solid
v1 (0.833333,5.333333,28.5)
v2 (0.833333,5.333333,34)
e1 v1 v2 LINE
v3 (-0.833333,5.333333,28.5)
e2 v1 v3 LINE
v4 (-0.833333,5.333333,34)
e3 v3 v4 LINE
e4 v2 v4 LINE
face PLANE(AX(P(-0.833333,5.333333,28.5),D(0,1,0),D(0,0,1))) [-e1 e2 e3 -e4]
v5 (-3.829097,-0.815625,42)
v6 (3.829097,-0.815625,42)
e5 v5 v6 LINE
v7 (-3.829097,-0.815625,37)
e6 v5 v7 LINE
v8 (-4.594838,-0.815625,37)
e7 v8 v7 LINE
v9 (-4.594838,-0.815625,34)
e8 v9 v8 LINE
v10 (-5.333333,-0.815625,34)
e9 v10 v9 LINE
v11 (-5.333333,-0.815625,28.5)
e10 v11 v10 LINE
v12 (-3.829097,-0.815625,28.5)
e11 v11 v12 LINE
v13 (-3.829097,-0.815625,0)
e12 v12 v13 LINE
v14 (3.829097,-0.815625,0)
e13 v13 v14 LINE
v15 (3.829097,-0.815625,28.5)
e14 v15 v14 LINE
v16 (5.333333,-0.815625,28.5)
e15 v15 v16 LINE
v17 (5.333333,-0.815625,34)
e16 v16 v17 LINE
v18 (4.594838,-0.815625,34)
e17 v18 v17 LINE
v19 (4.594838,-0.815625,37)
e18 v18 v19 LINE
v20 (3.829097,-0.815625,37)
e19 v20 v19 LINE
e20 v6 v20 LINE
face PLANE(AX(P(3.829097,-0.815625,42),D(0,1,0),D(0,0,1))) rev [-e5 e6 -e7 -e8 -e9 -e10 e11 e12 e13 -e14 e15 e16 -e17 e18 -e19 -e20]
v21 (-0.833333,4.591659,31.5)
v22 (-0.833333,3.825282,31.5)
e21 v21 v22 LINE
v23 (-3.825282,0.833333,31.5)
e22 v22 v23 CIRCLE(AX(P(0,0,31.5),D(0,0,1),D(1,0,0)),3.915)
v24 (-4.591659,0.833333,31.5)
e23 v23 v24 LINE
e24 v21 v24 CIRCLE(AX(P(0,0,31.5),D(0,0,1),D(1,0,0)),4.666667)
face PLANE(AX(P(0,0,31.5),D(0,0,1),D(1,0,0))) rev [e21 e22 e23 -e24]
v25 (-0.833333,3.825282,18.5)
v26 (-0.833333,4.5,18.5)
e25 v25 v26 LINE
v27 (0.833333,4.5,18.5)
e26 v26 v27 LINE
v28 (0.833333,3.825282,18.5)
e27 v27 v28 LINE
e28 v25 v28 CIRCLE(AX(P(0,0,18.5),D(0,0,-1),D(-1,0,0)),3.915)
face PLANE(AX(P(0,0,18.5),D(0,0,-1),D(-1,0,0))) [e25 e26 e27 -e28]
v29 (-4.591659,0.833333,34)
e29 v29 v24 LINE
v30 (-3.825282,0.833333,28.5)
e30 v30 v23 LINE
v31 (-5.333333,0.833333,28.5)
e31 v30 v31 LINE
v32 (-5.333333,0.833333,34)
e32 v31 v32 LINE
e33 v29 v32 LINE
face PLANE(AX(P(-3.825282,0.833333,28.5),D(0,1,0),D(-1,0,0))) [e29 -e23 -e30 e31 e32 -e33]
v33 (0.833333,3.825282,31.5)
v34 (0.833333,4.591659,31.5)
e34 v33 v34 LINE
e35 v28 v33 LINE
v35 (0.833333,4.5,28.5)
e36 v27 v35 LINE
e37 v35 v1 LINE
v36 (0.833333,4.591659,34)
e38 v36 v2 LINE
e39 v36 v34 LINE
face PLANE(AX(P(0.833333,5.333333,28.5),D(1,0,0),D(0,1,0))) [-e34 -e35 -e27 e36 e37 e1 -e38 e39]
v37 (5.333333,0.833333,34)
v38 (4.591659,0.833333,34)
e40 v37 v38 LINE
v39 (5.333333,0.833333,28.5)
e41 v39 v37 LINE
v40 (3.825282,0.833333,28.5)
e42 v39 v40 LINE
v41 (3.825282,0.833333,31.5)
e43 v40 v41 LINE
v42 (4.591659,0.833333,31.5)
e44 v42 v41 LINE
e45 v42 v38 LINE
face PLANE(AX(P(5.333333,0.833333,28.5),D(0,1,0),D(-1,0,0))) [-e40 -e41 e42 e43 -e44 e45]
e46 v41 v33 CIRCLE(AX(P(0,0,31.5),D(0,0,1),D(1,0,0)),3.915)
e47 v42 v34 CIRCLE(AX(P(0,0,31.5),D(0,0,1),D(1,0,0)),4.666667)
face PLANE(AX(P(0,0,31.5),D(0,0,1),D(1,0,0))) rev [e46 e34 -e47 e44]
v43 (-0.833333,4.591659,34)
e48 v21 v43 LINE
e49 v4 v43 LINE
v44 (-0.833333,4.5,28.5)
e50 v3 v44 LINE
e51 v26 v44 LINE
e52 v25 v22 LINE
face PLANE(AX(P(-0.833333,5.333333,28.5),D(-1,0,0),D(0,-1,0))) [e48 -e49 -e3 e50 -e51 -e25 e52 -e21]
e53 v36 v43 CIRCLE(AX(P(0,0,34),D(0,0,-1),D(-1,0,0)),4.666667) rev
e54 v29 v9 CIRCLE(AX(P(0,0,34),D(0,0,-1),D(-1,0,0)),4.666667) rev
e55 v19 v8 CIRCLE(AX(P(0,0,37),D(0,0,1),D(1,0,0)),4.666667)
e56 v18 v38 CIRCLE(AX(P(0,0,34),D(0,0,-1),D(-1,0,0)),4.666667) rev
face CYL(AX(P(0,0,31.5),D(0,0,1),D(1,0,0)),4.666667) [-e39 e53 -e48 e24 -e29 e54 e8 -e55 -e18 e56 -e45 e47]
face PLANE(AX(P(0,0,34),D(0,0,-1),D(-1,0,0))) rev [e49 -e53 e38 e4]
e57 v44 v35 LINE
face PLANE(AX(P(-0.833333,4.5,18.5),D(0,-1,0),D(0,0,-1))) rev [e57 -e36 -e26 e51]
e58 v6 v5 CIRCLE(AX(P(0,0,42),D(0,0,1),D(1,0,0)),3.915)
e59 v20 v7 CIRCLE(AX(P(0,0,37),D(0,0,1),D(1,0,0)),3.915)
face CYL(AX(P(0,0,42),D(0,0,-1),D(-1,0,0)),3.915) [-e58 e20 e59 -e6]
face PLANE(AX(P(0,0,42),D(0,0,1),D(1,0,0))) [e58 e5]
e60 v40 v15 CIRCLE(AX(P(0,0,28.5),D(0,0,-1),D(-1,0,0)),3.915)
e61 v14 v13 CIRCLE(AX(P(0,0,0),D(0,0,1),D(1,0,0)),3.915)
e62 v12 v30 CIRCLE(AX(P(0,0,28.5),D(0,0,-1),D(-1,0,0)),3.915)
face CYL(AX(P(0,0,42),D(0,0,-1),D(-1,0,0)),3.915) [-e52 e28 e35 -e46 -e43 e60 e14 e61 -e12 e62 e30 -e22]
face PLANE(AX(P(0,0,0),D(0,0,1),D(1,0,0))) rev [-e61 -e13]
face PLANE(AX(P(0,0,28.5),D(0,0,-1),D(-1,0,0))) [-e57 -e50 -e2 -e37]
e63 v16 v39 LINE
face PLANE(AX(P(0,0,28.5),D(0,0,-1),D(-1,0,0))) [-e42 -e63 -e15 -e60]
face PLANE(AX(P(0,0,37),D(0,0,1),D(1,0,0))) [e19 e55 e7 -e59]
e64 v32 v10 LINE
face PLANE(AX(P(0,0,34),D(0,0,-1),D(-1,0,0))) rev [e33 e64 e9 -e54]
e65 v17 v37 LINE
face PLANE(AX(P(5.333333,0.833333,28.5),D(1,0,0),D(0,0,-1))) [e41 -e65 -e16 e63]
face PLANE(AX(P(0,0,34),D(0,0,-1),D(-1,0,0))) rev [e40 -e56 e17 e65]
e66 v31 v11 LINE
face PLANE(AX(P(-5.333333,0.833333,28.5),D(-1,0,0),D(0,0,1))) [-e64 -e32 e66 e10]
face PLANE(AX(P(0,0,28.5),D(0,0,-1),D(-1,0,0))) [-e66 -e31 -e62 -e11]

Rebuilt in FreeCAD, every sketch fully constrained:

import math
import FreeCAD as App
import Part
import Sketcher

V = App.Vector
Q = App.Units.Quantity

doc = App.newDocument("Part")
params = doc.addObject("Spreadsheet::Sheet", "Params")
for row, (alias, value) in enumerate([
    ("pad1_length", "42 mm"),
    ("pad2_length", "5.5 mm"),
    ("pad3_length", "2.5 mm"),
    ("pad3_length2", "3 mm"),
    ("pad4_length", "10 mm"),
], start=1):
    params.set(f"A{row}", alias)
    params.set(f"B{row}", "=" + value)
    params.setAlias(f"B{row}", alias)

body = doc.addObject("PartDesign::Body", "Body")

# Sketch on XY plane
sketch1 = body.newObject("Sketcher::SketchObject", "Sketch")
sketch1.AttachmentSupport = (doc.getObject("XY_Plane"), [""])
sketch1.MapMode = "FlatFace"
sketch1.addGeometry(Part.LineSegment(V(-3.8, -0.8, 0), V(3.8, -0.8, 0)), False)
sketch1.addGeometry(Part.ArcOfCircle(Part.Circle(V(0, 0, 0), V(0, 0, 1), 3.9), math.radians(-12), math.radians(192)), False)
sketch1.addConstraint(Sketcher.Constraint("Coincident", 0, 1, 1, 2))
sketch1.addConstraint(Sketcher.Constraint("Coincident", 1, 1, 0, 2))
sketch1.addConstraint(Sketcher.Constraint("Horizontal", 0))
sketch1.addConstraint(Sketcher.Constraint("Coincident", 1, 3, -1, 1))
sketch1.addConstraint(Sketcher.Constraint("Radius", 1, Q("3.915 mm")))
sketch1.addConstraint(Sketcher.Constraint("DistanceX", 0, 1, 0, 2, Q("7.658193 mm")))
pad1 = body.newObject("PartDesign::Pad", "Pad")
pad1.Profile = sketch1
pad1.setExpression("Length", "Params.pad1_length")

# Sketch on XY plane
sketch2 = body.newObject("Sketcher::SketchObject", "Sketch001")
sketch2.AttachmentSupport = (doc.getObject("XY_Plane"), [""])
sketch2.MapMode = "FlatFace"
sketch2.AttachmentOffset = App.Placement(V(0, 0, 37), App.Rotation())
sketch2.addGeometry(Part.LineSegment(V(-4.6, -0.8, 0), V(4.6, -0.8, 0)), False)
sketch2.addGeometry(Part.ArcOfCircle(Part.Circle(V(0, 0, 0), V(0, 0, 1), 4.7), math.radians(-10.07), math.radians(0)), False)
sketch2.addGeometry(Part.ArcOfCircle(Part.Circle(V(0, 0, 0), V(0, 0, 1), 4.7), math.radians(0), math.radians(180)), False)
sketch2.addGeometry(Part.ArcOfCircle(Part.Circle(V(0, 0, 0), V(0, 0, 1), 4.7), math.radians(-180), math.radians(-169.93)), False)
sketch2.addConstraint(Sketcher.Constraint("Coincident", 0, 2, 1, 1))
sketch2.addConstraint(Sketcher.Constraint("Tangent", 1, 2, 2, 1))
sketch2.addConstraint(Sketcher.Constraint("Tangent", 2, 2, 3, 1))
sketch2.addConstraint(Sketcher.Constraint("Coincident", 3, 2, 0, 1))
sketch2.addConstraint(Sketcher.Constraint("Horizontal", 0))
sketch2.addConstraint(Sketcher.Constraint("Coincident", 1, 3, -1, 1))
sketch2.addConstraint(Sketcher.Constraint("Equal", 1, 2))
sketch2.addConstraint(Sketcher.Constraint("Equal", 2, 3))
sketch2.addConstraint(Sketcher.Constraint("PointOnObject", 1, 2, -1))
sketch2.addConstraint(Sketcher.Constraint("PointOnObject", 2, 2, -1))
sketch2.addConstraint(Sketcher.Constraint("Radius", 1, Q("4.666667 mm")))
sketch2.addConstraint(Sketcher.Constraint("DistanceX", 0, 1, 0, 2, Q("9.189675 mm")))
pad2 = body.newObject("PartDesign::Pad", "Pad001")
pad2.Profile = sketch2
pad2.setExpression("Length", "Params.pad2_length")
pad2.Reversed = True

# Sketch on XY plane
sketch3 = body.newObject("Sketcher::SketchObject", "Sketch002")
sketch3.AttachmentSupport = (doc.getObject("XY_Plane"), [""])
sketch3.MapMode = "FlatFace"
sketch3.AttachmentOffset = App.Placement(V(0, 0, 31.5), App.Rotation())
sketch3.addGeometry(Part.LineSegment(V(5.3, 0.8, 0), V(3.8, 0.8, 0)), False)
sketch3.addGeometry(Part.ArcOfCircle(Part.Circle(V(0, 0, 0), V(0, 0, 1), 3.9), math.radians(12), math.radians(78)), False)
sketch3.addGeometry(Part.LineSegment(V(0.8, 3.8, 0), V(0.8, 5.3, 0)), False)
sketch3.addGeometry(Part.LineSegment(V(0.8, 5.3, 0), V(-0.8, 5.3, 0)), False)
sketch3.addGeometry(Part.LineSegment(V(-0.8, 5.3, 0), V(-0.8, 3.8, 0)), False)
sketch3.addGeometry(Part.ArcOfCircle(Part.Circle(V(0, 0, 0), V(0, 0, 1), 3.9), math.radians(102), math.radians(168)), False)
sketch3.addGeometry(Part.LineSegment(V(-3.8, 0.8, 0), V(-5.3, 0.8, 0)), False)
sketch3.addGeometry(Part.LineSegment(V(-5.3, 0.8, 0), V(-5.3, -0.8, 0)), False)
sketch3.addGeometry(Part.LineSegment(V(-5.3, -0.8, 0), V(5.3, -0.8, 0)), False)
sketch3.addGeometry(Part.LineSegment(V(5.3, -0.8, 0), V(5.3, 0.8, 0)), False)
sketch3.addConstraint(Sketcher.Constraint("Coincident", 0, 2, 1, 1))
sketch3.addConstraint(Sketcher.Constraint("Coincident", 1, 2, 2, 1))
sketch3.addConstraint(Sketcher.Constraint("Coincident", 2, 2, 3, 1))
sketch3.addConstraint(Sketcher.Constraint("Coincident", 3, 2, 4, 1))
sketch3.addConstraint(Sketcher.Constraint("Coincident", 4, 2, 5, 1))
sketch3.addConstraint(Sketcher.Constraint("Coincident", 5, 2, 6, 1))
sketch3.addConstraint(Sketcher.Constraint("Coincident", 6, 2, 7, 1))
sketch3.addConstraint(Sketcher.Constraint("Coincident", 7, 2, 8, 1))
sketch3.addConstraint(Sketcher.Constraint("Coincident", 8, 2, 9, 1))
sketch3.addConstraint(Sketcher.Constraint("Coincident", 9, 2, 0, 1))
sketch3.addConstraint(Sketcher.Constraint("Horizontal", 0))
sketch3.addConstraint(Sketcher.Constraint("Vertical", 2))
sketch3.addConstraint(Sketcher.Constraint("Horizontal", 3))
sketch3.addConstraint(Sketcher.Constraint("Vertical", 4))
sketch3.addConstraint(Sketcher.Constraint("Horizontal", 6))
sketch3.addConstraint(Sketcher.Constraint("Vertical", 7))
sketch3.addConstraint(Sketcher.Constraint("Horizontal", 8))
sketch3.addConstraint(Sketcher.Constraint("Vertical", 9))
sketch3.addConstraint(Sketcher.Constraint("Coincident", 1, 3, -1, 1))
sketch3.addConstraint(Sketcher.Constraint("Coincident", 5, 3, -1, 1))
sketch3.addConstraint(Sketcher.Constraint("Equal", 1, 5))
sketch3.addConstraint(Sketcher.Constraint("Symmetric", 6, 2, 9, 2, -2))
sketch3.addConstraint(Sketcher.Constraint("Horizontal", 1, 2, 4, 2))
sketch3.addConstraint(Sketcher.Constraint("Equal", 6, 2))
sketch3.addConstraint(Sketcher.Constraint("Radius", 1, Q("3.915 mm")))
sketch3.addConstraint(Sketcher.Constraint("DistanceY", 0, 2, 2, 2, Q("4.5 mm")))
sketch3.addConstraint(Sketcher.Constraint("DistanceX", 6, 2, 4, 2, Q("4.5 mm")))
sketch3.addConstraint(Sketcher.Constraint("DistanceX", 0, 2, 0, 1, Q("1.508052 mm")))
sketch3.addConstraint(Sketcher.Constraint("DistanceY", 7, 2, 7, 1, Q("1.648958 mm")))
pad3 = body.newObject("PartDesign::Pad", "Pad002")
pad3.Profile = sketch3
pad3.Type = "TwoLengths"
pad3.setExpression("Length", "Params.pad3_length")
pad3.setExpression("Length2", "Params.pad3_length2")

# Sketch on XY plane
sketch4 = body.newObject("Sketcher::SketchObject", "Sketch003")
sketch4.AttachmentSupport = (doc.getObject("XY_Plane"), [""])
sketch4.MapMode = "FlatFace"
sketch4.AttachmentOffset = App.Placement(V(0, 0, 28.5), App.Rotation())
sketch4.addGeometry(Part.LineSegment(V(0.8, 4.5, 0), V(0.8, 0.3, 0)), False)
sketch4.addGeometry(Part.LineSegment(V(0.8, 0.3, 0), V(-0.8, 0.3, 0)), False)
sketch4.addGeometry(Part.LineSegment(V(-0.8, 0.3, 0), V(-0.8, 4.5, 0)), False)
sketch4.addGeometry(Part.LineSegment(V(-0.8, 4.5, 0), V(0.8, 4.5, 0)), False)
sketch4.addConstraint(Sketcher.Constraint("Coincident", 0, 2, 1, 1))
sketch4.addConstraint(Sketcher.Constraint("Coincident", 1, 2, 2, 1))
sketch4.addConstraint(Sketcher.Constraint("Coincident", 2, 2, 3, 1))
sketch4.addConstraint(Sketcher.Constraint("Coincident", 3, 2, 0, 1))
sketch4.addConstraint(Sketcher.Constraint("Vertical", 0))
sketch4.addConstraint(Sketcher.Constraint("Horizontal", 1))
sketch4.addConstraint(Sketcher.Constraint("Vertical", 2))
sketch4.addConstraint(Sketcher.Constraint("Horizontal", 3))
sketch4.addConstraint(Sketcher.Constraint("DistanceY", -1, 1, 2, 2, Q("4.5 mm")))
sketch4.addConstraint(Sketcher.Constraint("DistanceX", 1, 2, 1, 1, Q("1.666667 mm")))
sketch4.addConstraint(Sketcher.Constraint("DistanceY", 0, 2, 0, 1, Q("4.236097 mm")))
sketch4.addConstraint(Sketcher.Constraint("DistanceX", -1, 1, 0, 2, Q("0.833333 mm")))
pad4 = body.newObject("PartDesign::Pad", "Pad003")
pad4.Profile = sketch4
pad4.setExpression("Length", "Params.pad4_length")
pad4.Reversed = True

doc.recompute()
